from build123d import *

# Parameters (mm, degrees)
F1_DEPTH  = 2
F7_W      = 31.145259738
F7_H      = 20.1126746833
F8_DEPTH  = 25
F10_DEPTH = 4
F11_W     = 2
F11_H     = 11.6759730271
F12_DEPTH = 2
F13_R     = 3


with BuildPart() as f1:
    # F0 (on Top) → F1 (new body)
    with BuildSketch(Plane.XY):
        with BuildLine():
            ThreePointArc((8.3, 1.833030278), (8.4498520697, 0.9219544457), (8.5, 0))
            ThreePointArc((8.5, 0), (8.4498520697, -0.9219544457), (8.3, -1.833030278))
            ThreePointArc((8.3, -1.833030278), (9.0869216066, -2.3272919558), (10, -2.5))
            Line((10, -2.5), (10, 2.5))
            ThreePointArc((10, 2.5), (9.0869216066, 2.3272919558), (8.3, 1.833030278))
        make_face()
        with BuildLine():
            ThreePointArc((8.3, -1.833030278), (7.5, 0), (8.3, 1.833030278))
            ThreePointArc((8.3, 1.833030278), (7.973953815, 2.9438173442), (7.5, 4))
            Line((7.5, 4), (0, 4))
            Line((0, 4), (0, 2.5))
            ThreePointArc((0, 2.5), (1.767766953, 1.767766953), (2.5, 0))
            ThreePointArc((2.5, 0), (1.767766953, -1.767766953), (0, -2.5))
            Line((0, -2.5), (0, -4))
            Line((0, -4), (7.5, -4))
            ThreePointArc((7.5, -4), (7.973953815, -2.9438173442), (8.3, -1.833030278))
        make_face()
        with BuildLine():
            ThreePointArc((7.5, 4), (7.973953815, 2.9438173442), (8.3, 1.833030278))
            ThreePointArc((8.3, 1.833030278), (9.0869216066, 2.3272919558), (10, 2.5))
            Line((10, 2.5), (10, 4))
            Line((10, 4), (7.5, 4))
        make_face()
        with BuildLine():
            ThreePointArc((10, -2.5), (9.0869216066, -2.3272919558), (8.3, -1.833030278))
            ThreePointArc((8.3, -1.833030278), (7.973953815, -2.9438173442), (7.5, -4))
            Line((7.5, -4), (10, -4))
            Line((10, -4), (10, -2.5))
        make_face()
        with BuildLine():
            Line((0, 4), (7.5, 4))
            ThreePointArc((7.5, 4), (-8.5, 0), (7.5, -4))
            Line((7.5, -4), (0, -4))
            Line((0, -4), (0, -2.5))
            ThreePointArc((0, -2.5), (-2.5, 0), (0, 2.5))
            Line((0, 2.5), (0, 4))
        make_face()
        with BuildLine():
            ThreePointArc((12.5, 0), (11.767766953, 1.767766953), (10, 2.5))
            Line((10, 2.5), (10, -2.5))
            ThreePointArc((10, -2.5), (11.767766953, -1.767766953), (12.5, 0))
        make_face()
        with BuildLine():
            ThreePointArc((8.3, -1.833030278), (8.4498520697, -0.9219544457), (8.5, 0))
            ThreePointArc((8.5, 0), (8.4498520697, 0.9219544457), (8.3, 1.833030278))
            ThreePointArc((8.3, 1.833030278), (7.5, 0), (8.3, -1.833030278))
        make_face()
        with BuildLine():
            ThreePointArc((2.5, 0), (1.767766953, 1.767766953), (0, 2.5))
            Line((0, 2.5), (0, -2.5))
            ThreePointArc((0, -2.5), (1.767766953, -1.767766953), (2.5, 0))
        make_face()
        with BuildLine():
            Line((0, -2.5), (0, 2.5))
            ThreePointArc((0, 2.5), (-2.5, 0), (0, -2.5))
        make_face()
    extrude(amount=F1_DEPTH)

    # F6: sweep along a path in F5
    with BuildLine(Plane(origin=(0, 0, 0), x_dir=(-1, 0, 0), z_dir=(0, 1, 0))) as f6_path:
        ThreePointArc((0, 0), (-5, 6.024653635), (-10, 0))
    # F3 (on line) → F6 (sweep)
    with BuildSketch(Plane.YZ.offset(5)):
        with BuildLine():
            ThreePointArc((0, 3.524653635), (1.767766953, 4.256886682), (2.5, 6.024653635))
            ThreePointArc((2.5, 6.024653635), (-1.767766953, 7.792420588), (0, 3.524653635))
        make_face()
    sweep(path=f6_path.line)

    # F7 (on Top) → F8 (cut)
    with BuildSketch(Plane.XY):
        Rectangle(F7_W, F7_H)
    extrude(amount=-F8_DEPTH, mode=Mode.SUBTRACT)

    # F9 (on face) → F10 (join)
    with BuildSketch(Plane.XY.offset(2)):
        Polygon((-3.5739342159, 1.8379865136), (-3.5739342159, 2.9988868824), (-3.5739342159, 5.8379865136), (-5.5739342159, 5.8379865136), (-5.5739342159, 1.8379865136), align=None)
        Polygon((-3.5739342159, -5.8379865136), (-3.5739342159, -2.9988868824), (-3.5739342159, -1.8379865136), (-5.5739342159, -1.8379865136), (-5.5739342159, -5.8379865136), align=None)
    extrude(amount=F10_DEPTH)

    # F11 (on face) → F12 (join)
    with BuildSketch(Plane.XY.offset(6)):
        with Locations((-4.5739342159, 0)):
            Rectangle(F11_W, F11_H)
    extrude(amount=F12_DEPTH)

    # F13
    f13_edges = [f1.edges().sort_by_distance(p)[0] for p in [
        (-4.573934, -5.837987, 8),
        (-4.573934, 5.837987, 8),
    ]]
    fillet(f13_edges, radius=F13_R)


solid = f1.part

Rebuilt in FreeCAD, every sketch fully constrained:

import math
import FreeCAD as App
import Part
import Sketcher


def edges_at(feature, points):
    """Names of the edges that pass closest to the given points."""
    edges = feature.Shape.Edges
    near = lambda p: min(range(len(edges)), key=lambda i: edges[i].distToShape(Part.Vertex(*p))[0])
    return sorted({f"Edge{near(p) + 1}" for p in points})


def add_polygon(sketch, points):
    """Adds a closed chain of lines whose ends are joined by coincident constraints."""
    first, n = sketch.GeometryCount, len(points)
    for a, b in zip(points, points[1:] + points[:1]):
        sketch.addGeometry(Part.LineSegment(App.Vector(*a, 0), App.Vector(*b, 0)), False)
    for i in range(n):
        sketch.addConstraint(Sketcher.Constraint("Coincident", first + i, 2, first + (i + 1) % n, 1))

doc = App.newDocument("Part")
body = doc.addObject("PartDesign::Body", "Body")

sketch1 = body.newObject("Sketcher::SketchObject", "Sketch")
sketch1.AttachmentSupport = (doc.getObject("XY_Plane"), [""])
sketch1.MapMode = "FlatFace"
sketch1.addGeometry(Part.LineSegment(App.Vector(7.5, -4, 0), App.Vector(10, -4, 0)), False)
sketch1.addGeometry(Part.LineSegment(App.Vector(10, -4, 0), App.Vector(10, -2.5, 0)), False)
sketch1.addGeometry(Part.ArcOfCircle(Part.Circle(App.Vector(10, 0, 0), App.Vector(0, 0, 1), 2.5), math.radians(-90), math.radians(0)), False)
sketch1.addGeometry(Part.ArcOfCircle(Part.Circle(App.Vector(10, 0, 0), App.Vector(0, 0, 1), 2.5), math.radians(0), math.radians(90)), False)
sketch1.addGeometry(Part.LineSegment(App.Vector(10, 2.5, 0), App.Vector(10, 4, 0)), False)
sketch1.addGeometry(Part.LineSegment(App.Vector(10, 4, 0), App.Vector(7.5, 4, 0)), False)
sketch1.addGeometry(Part.ArcOfCircle(Part.Circle(App.Vector(0, 0, 0), App.Vector(0, 0, 1), 8.5), math.radians(28), math.radians(332)), False)
sketch1.addConstraint(Sketcher.Constraint("Coincident", 0, 2, 1, 1))
sketch1.addConstraint(Sketcher.Constraint("Coincident", 1, 2, 2, 1))
sketch1.addConstraint(Sketcher.Constraint("Tangent", 2, 2, 3, 1))
sketch1.addConstraint(Sketcher.Constraint("Coincident", 3, 2, 4, 1))
sketch1.addConstraint(Sketcher.Constraint("Coincident", 4, 2, 5, 1))
sketch1.addConstraint(Sketcher.Constraint("Coincident", 5, 2, 6, 1))
sketch1.addConstraint(Sketcher.Constraint("Coincident", 6, 2, 0, 1))
sketch1.addConstraint(Sketcher.Constraint("Horizontal", 0))
sketch1.addConstraint(Sketcher.Constraint("Vertical", 1))
sketch1.addConstraint(Sketcher.Constraint("Vertical", 4))
sketch1.addConstraint(Sketcher.Constraint("Horizontal", 5))
sketch1.addConstraint(Sketcher.Constraint("Coincident", 6, 3, -1, 1))
sketch1.addConstraint(Sketcher.Constraint("Equal", 2, 3))
sketch1.addConstraint(Sketcher.Constraint("Symmetric", 1, 2, 3, 2, -1))
sketch1.addConstraint(Sketcher.Constraint("PointOnObject", 2, 2, -1))
sketch1.addConstraint(Sketcher.Constraint("Vertical", 3, 3, 0, 2))
sketch1.addConstraint(Sketcher.Constraint("Vertical", 5, 2, 6, 2))
sketch1.addConstraint(Sketcher.Constraint("Radius", 2, 2.5))
sketch1.addConstraint(Sketcher.Constraint("Radius", 6, 8.5))
sketch1.addConstraint(Sketcher.Constraint("DistanceX", 0, 1, 0, 2, 2.5))
sketch1.addConstraint(Sketcher.Constraint("DistanceY", 1, 1, 1, 2, 1.5))
pad1 = body.newObject("PartDesign::Pad", "Pad")
pad1.Profile = sketch1
pad1.Length = 2

sketch2 = body.newObject("Sketcher::SketchObject", "Sketch001")
sketch2.AttachmentSupport = (doc.getObject("YZ_Plane"), [""])
sketch2.MapMode = "FlatFace"
sketch2.AttachmentOffset = App.Placement(App.Vector(0, 0, 5), App.Rotation())
sketch2.addGeometry(Part.ArcOfCircle(Part.Circle(App.Vector(0, 6, 0), App.Vector(0, 0, 1), 2.5), math.radians(-90), math.radians(0)), False)
sketch2.addGeometry(Part.ArcOfCircle(Part.Circle(App.Vector(0, 6, 0), App.Vector(0, 0, 1), 2.5), math.radians(0), math.radians(270)), False)
sketch2.addConstraint(Sketcher.Constraint("Tangent", 0, 1, 1, 2))
sketch2.addConstraint(Sketcher.Constraint("Coincident", 1, 1, 0, 2))
sketch2.addConstraint(Sketcher.Constraint("PointOnObject", 0, 3, -2))
sketch2.addConstraint(Sketcher.Constraint("PointOnObject", 0, 1, -2))
sketch2.addConstraint(Sketcher.Constraint("Horizontal", 0, 3, 1, 1))
sketch2.addConstraint(Sketcher.Constraint("Radius", 0, 2.5))
sketch2.addConstraint(Sketcher.Constraint("DistanceY", -1, 1, 0, 3, 6.024654))

sketch3 = body.newObject("Sketcher::SketchObject", "Sketch002")
sketch3.AttachmentSupport = (doc.getObject("XZ_Plane"), [""])
sketch3.MapMode = "FlatFace"
sketch3.addGeometry(Part.ArcOfCircle(Part.Circle(App.Vector(5, 1, 0), App.Vector(0, 0, 1), 5), math.radians(-11), math.radians(191)), False)
sketch3.addConstraint(Sketcher.Constraint("Coincident", 0, 2, -1, 1))
sketch3.addConstraint(Sketcher.Constraint("PointOnObject", 0, 1, -1))
sketch3.addConstraint(Sketcher.Constraint("DistanceX", -1, 1, 0, 3, 5.0))
sketch3.addConstraint(Sketcher.Constraint("Radius", 0, 5.087135))
doc.recompute()

additivepipe = body.newObject("PartDesign::AdditivePipe", "AdditivePipe")
additivepipe.Profile = sketch2
additivepipe.Spine = (sketch3, ["Edge1"])

sketch4 = body.newObject("Sketcher::SketchObject", "Sketch003")
sketch4.AttachmentSupport = (doc.getObject("XY_Plane"), [""])
sketch4.MapMode = "FlatFace"
add_polygon(sketch4, [(-16, 10), (-16, -10), (16, -10), (16, 10)])
sketch4.addConstraint(Sketcher.Constraint("Vertical", 0))
sketch4.addConstraint(Sketcher.Constraint("Horizontal", 1))
sketch4.addConstraint(Sketcher.Constraint("Vertical", 2))
sketch4.addConstraint(Sketcher.Constraint("Horizontal", 3))
sketch4.addConstraint(Sketcher.Constraint("Symmetric", 0, 2, 2, 2, -1, 1))
sketch4.addConstraint(Sketcher.Constraint("DistanceX", 1, 1, 1, 2, 31.14526))
sketch4.addConstraint(Sketcher.Constraint("DistanceY", 0, 2, 0, 1, 20.112675))
pocket1 = body.newObject("PartDesign::Pocket", "Pocket")
pocket1.Profile = sketch4
pocket1.Length = 25

sketch5 = body.newObject("Sketcher::SketchObject", "Sketch004")
sketch5.AttachmentSupport = (doc.getObject("XY_Plane"), [""])
sketch5.MapMode = "FlatFace"
sketch5.AttachmentOffset = App.Placement(App.Vector(0, 0, 2), App.Rotation())
add_polygon(sketch5, [(-3.6, 1.8), (-3.6, 5.8), (-5.6, 5.8), (-5.6, 1.8)])
add_polygon(sketch5, [(-3.6, -5.8), (-3.6, -1.8), (-5.6, -1.8), (-5.6, -5.8)])
sketch5.addConstraint(Sketcher.Constraint("Vertical", 0))
sketch5.addConstraint(Sketcher.Constraint("Horizontal", 1))
sketch5.addConstraint(Sketcher.Constraint("Vertical", 2))
sketch5.addConstraint(Sketcher.Constraint("Horizontal", 3))
sketch5.addConstraint(Sketcher.Constraint("Vertical", 4))
sketch5.addConstraint(Sketcher.Constraint("Horizontal", 5))
sketch5.addConstraint(Sketcher.Constraint("Vertical", 6))
sketch5.addConstraint(Sketcher.Constraint("Horizontal", 7))
sketch5.addConstraint(Sketcher.Constraint("Symmetric", 3, 2, 4, 2, -1))
sketch5.addConstraint(Sketcher.Constraint("Symmetric", 1, 2, 6, 2, -1))
sketch5.addConstraint(Sketcher.Constraint("DistanceX", 1, 2, 1, 1, 2.0))
sketch5.addConstraint(Sketcher.Constraint("DistanceY", 0, 1, 0, 2, 4.0))
sketch5.addConstraint(Sketcher.Constraint("DistanceX", 0, 2, -1, 1, 3.573934))
sketch5.addConstraint(Sketcher.Constraint("DistanceY", -1, 1, 0, 2, 5.837987))
pad2 = body.newObject("PartDesign::Pad", "Pad001")
pad2.Profile = sketch5
pad2.Length = 4

sketch6 = body.newObject("Sketcher::SketchObject", "Sketch005")
sketch6.AttachmentSupport = (doc.getObject("XY_Plane"), [""])
sketch6.MapMode = "FlatFace"
sketch6.AttachmentOffset = App.Placement(App.Vector(0, 0, 6), App.Rotation())
add_polygon(sketch6, [(-5.6, 5.8), (-5.6, -5.8), (-3.6, -5.8), (-3.6, 5.8)])
sketch6.addConstraint(Sketcher.Constraint("Vertical", 0))
sketch6.addConstraint(Sketcher.Constraint("Horizontal", 1))
sketch6.addConstraint(Sketcher.Constraint("Vertical", 2))
sketch6.addConstraint(Sketcher.Constraint("Horizontal", 3))
sketch6.addConstraint(Sketcher.Constraint("DistanceX", 1, 1, 1, 2, 2.0))
sketch6.addConstraint(Sketcher.Constraint("DistanceY", 0, 2, 0, 1, 11.675973))
sketch6.addConstraint(Sketcher.Constraint("DistanceX", 0, 2, -1, 1, 5.573934))
sketch6.addConstraint(Sketcher.Constraint("DistanceY", 0, 2, -1, 1, 5.837987))
pad3 = body.newObject("PartDesign::Pad", "Pad002")
pad3.Profile = sketch6
pad3.Length = 2
doc.recompute()

fillet = body.newObject("PartDesign::Fillet", "Fillet")
fillet.Base = (pad3, edges_at(pad3, [(-4.574, -5.838, 8), (-4.574, 5.838, 8)]))
fillet.Radius = 3

doc.recompute()
